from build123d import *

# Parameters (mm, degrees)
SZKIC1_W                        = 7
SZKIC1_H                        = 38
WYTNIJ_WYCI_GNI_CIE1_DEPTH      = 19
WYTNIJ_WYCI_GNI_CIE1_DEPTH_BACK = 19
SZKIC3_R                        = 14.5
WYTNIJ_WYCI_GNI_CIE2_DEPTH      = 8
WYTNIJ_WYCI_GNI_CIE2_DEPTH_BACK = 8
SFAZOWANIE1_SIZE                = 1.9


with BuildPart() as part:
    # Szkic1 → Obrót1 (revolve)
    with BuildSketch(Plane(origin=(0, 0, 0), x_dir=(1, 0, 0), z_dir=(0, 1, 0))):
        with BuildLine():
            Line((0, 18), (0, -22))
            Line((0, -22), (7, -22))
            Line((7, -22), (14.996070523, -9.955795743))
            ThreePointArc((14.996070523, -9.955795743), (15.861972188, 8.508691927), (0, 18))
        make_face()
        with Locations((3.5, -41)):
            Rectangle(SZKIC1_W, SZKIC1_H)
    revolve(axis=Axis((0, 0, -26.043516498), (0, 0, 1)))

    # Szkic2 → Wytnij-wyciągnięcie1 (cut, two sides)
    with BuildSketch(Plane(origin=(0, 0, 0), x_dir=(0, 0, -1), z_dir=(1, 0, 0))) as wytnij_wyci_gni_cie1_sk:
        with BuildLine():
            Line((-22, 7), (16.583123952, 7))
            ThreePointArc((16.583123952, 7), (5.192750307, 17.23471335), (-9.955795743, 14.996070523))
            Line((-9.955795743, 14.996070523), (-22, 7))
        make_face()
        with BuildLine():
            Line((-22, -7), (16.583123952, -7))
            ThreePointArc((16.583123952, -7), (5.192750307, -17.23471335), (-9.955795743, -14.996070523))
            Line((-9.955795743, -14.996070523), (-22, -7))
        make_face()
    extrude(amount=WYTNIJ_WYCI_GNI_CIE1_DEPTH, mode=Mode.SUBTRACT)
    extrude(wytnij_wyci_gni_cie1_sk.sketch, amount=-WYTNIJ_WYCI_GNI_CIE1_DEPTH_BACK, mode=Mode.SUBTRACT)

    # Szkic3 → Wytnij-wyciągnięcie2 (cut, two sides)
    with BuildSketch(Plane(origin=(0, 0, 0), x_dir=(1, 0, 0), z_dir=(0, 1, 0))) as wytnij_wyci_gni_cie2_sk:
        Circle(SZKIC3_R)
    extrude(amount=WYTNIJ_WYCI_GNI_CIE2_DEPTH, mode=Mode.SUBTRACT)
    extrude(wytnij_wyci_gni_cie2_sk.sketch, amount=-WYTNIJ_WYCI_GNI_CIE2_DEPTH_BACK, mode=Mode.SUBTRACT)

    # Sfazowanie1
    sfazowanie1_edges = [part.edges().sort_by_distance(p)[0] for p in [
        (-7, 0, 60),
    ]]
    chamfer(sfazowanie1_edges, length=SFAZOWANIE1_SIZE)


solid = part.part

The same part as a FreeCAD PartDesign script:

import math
import FreeCAD as App
import Part
import Sketcher
from FreeCAD import Vector
Q = App.Units.Quantity


def edges_at(feature, points):
    """Names of the edges that pass closest to the given points."""
    edges = feature.Shape.Edges
    near = lambda p: min(range(len(edges)), key=lambda i: edges[i].distToShape(Part.Vertex(*p))[0])
    return sorted({f"Edge{near(p) + 1}" for p in points})

doc = App.newDocument("Part")
params = doc.addObject("Spreadsheet::Sheet", "Params")
for row, (alias, value) in enumerate([
    ("sketch1_radius", "18 mm"),
    ("sketch1_width", "7 mm"),
    ("sketch1_height", "78 mm"),
    ("sketch1_height2", "38 mm"),
    ("revolution_angle", "360 deg"),
    ("sketch2_radius", "18 mm"),
    ("sketch3_diameter", "29 mm"),
    ("chamfer_size", "1.9 mm"),
], start=1):
    params.set(f"A{row}", alias)
    params.set(f"B{row}", "=" + value)
    params.setAlias(f"B{row}", alias)

body = doc.addObject("PartDesign::Body", "Body")

sketch1 = body.newObject("Sketcher::SketchObject", "Sketch")
sketch1.AttachmentSupport = (doc.getObject("XZ_Plane"), [""])
sketch1.MapMode = "FlatFace"
sketch1.addGeometry([
    Part.LineSegment(Vector(0, -18, 0), Vector(0, 60, 0)),
    Part.LineSegment(Vector(0, 60, 0), Vector(7, 60, 0)),
    Part.LineSegment(Vector(7, 60, 0), Vector(7, 22, 0)),
    Part.LineSegment(Vector(7, 22, 0), Vector(15, 10, 0)),
    Part.ArcOfCircle(Part.Circle(Vector(0, 0, 0), Vector(0, 0, 1), 18), math.radians(-90), math.radians(34)),
], False)
sketch1.addConstraint([
    Sketcher.Constraint("Coincident", 0, 2, 1, 1),
    Sketcher.Constraint("Coincident", 1, 2, 2, 1),
    Sketcher.Constraint("Coincident", 2, 2, 3, 1),
    Sketcher.Constraint("Tangent", 3, 2, 4, 2),
    Sketcher.Constraint("Coincident", 4, 1, 0, 1),
    Sketcher.Constraint("Vertical", 0),
    Sketcher.Constraint("Horizontal", 1),
    Sketcher.Constraint("Vertical", 2),
    Sketcher.Constraint("Coincident", 4, 3, -1, 1),
    Sketcher.Constraint("PointOnObject", 0, 2, -2),
    Sketcher.Constraint("Radius", 4, Q("18 mm")),
    Sketcher.Constraint("DistanceX", 1, 1, 1, 2, Q("7 mm")),
    Sketcher.Constraint("DistanceY", 0, 1, 0, 2, Q("78 mm")),
    Sketcher.Constraint("DistanceY", 2, 2, 2, 1, Q("38 mm")),
])
sketch1.setExpression("Constraints[10]", "Params.sketch1_radius")
sketch1.setExpression("Constraints[11]", "Params.sketch1_width")
sketch1.setExpression("Constraints[12]", "Params.sketch1_height")
sketch1.setExpression("Constraints[13]", "Params.sketch1_height2")
revolution = body.newObject("PartDesign::Revolution", "Revolution")
revolution.Profile = sketch1
revolution.ReferenceAxis = (sketch1, ["V_Axis"])
revolution.setExpression("Angle", "Params.revolution_angle")

sketch2 = body.newObject("Sketcher::SketchObject", "Sketch001")
sketch2.AttachmentSupport = (doc.getObject("YZ_Plane"), [""])
sketch2.MapMode = "FlatFace"
sketch2.addGeometry([
    Part.LineSegment(Vector(7, 22, 0), Vector(7, -17, 0)),
    Part.ArcOfCircle(Part.Circle(Vector(0, 0, 0), Vector(0, 0, 1), 18), math.radians(-67), math.radians(34)),
    Part.LineSegment(Vector(15, 10, 0), Vector(7, 22, 0)),
    Part.LineSegment(Vector(-7, -17, 0), Vector(-7, 22, 0)),
    Part.LineSegment(Vector(-7, 22, 0), Vector(-15, 10, 0)),
    Part.ArcOfCircle(Part.Circle(Vector(0, 0, 0), Vector(0, 0, 1), 18), math.radians(146), math.radians(247)),
], False)
sketch2.addConstraint([
    Sketcher.Constraint("Coincident", 0, 2, 1, 1),
    Sketcher.Constraint("Tangent", 1, 2, 2, 1),
    Sketcher.Constraint("Coincident", 2, 2, 0, 1),
    Sketcher.Constraint("Coincident", 3, 2, 4, 1),
    Sketcher.Constraint("Tangent", 4, 2, 5, 1),
    Sketcher.Constraint("Coincident", 5, 2, 3, 1),
    Sketcher.Constraint("Vertical", 0),
    Sketcher.Constraint("Vertical", 3),
    Sketcher.Constraint("Coincident", 1, 3, -1, 1),
    Sketcher.Constraint("Coincident", 5, 3, -1, 1),
    Sketcher.Constraint("Equal", 1, 5),
    Sketcher.Constraint("Symmetric", 2, 2, 3, 2, -2),
    Sketcher.Constraint("Radius", 1, Q("18 mm")),
    Sketcher.Constraint("DistanceX", -1, 1, 0, 2, Q("7 mm")),
    Sketcher.Constraint("DistanceY", -1, 1, 2, 2, Q("22 mm")),
])
sketch2.setExpression("Constraints[12]", "Params.sketch2_radius")
pocket1 = body.newObject("PartDesign::Pocket", "Pocket")
pocket1.Profile = sketch2
pocket1.Type = "ThroughAll"
pocket1.Midplane = True

sketch3 = body.newObject("Sketcher::SketchObject", "Sketch002")
sketch3.AttachmentSupport = (doc.getObject("XZ_Plane"), [""])
sketch3.MapMode = "FlatFace"
sketch3.addGeometry(Part.Circle(Vector(0, 0, 0), Vector(0, 0, 1), 14), False)
sketch3.addConstraint([
    Sketcher.Constraint("Coincident", 0, 3, -1, 1),
    Sketcher.Constraint("Diameter", 0, Q("29 mm")),
])
sketch3.setExpression("Constraints[1]", "Params.sketch3_diameter")
pocket2 = body.newObject("PartDesign::Pocket", "Pocket001")
pocket2.Profile = sketch3
pocket2.Type = "ThroughAll"
pocket2.Midplane = True
doc.recompute()

chamfer = body.newObject("PartDesign::Chamfer", "Chamfer")
chamfer.Base = (pocket2, edges_at(pocket2, [(-7, 0, 60)]))
chamfer.setExpression("Size", "Params.chamfer_size")

doc.recompute()
